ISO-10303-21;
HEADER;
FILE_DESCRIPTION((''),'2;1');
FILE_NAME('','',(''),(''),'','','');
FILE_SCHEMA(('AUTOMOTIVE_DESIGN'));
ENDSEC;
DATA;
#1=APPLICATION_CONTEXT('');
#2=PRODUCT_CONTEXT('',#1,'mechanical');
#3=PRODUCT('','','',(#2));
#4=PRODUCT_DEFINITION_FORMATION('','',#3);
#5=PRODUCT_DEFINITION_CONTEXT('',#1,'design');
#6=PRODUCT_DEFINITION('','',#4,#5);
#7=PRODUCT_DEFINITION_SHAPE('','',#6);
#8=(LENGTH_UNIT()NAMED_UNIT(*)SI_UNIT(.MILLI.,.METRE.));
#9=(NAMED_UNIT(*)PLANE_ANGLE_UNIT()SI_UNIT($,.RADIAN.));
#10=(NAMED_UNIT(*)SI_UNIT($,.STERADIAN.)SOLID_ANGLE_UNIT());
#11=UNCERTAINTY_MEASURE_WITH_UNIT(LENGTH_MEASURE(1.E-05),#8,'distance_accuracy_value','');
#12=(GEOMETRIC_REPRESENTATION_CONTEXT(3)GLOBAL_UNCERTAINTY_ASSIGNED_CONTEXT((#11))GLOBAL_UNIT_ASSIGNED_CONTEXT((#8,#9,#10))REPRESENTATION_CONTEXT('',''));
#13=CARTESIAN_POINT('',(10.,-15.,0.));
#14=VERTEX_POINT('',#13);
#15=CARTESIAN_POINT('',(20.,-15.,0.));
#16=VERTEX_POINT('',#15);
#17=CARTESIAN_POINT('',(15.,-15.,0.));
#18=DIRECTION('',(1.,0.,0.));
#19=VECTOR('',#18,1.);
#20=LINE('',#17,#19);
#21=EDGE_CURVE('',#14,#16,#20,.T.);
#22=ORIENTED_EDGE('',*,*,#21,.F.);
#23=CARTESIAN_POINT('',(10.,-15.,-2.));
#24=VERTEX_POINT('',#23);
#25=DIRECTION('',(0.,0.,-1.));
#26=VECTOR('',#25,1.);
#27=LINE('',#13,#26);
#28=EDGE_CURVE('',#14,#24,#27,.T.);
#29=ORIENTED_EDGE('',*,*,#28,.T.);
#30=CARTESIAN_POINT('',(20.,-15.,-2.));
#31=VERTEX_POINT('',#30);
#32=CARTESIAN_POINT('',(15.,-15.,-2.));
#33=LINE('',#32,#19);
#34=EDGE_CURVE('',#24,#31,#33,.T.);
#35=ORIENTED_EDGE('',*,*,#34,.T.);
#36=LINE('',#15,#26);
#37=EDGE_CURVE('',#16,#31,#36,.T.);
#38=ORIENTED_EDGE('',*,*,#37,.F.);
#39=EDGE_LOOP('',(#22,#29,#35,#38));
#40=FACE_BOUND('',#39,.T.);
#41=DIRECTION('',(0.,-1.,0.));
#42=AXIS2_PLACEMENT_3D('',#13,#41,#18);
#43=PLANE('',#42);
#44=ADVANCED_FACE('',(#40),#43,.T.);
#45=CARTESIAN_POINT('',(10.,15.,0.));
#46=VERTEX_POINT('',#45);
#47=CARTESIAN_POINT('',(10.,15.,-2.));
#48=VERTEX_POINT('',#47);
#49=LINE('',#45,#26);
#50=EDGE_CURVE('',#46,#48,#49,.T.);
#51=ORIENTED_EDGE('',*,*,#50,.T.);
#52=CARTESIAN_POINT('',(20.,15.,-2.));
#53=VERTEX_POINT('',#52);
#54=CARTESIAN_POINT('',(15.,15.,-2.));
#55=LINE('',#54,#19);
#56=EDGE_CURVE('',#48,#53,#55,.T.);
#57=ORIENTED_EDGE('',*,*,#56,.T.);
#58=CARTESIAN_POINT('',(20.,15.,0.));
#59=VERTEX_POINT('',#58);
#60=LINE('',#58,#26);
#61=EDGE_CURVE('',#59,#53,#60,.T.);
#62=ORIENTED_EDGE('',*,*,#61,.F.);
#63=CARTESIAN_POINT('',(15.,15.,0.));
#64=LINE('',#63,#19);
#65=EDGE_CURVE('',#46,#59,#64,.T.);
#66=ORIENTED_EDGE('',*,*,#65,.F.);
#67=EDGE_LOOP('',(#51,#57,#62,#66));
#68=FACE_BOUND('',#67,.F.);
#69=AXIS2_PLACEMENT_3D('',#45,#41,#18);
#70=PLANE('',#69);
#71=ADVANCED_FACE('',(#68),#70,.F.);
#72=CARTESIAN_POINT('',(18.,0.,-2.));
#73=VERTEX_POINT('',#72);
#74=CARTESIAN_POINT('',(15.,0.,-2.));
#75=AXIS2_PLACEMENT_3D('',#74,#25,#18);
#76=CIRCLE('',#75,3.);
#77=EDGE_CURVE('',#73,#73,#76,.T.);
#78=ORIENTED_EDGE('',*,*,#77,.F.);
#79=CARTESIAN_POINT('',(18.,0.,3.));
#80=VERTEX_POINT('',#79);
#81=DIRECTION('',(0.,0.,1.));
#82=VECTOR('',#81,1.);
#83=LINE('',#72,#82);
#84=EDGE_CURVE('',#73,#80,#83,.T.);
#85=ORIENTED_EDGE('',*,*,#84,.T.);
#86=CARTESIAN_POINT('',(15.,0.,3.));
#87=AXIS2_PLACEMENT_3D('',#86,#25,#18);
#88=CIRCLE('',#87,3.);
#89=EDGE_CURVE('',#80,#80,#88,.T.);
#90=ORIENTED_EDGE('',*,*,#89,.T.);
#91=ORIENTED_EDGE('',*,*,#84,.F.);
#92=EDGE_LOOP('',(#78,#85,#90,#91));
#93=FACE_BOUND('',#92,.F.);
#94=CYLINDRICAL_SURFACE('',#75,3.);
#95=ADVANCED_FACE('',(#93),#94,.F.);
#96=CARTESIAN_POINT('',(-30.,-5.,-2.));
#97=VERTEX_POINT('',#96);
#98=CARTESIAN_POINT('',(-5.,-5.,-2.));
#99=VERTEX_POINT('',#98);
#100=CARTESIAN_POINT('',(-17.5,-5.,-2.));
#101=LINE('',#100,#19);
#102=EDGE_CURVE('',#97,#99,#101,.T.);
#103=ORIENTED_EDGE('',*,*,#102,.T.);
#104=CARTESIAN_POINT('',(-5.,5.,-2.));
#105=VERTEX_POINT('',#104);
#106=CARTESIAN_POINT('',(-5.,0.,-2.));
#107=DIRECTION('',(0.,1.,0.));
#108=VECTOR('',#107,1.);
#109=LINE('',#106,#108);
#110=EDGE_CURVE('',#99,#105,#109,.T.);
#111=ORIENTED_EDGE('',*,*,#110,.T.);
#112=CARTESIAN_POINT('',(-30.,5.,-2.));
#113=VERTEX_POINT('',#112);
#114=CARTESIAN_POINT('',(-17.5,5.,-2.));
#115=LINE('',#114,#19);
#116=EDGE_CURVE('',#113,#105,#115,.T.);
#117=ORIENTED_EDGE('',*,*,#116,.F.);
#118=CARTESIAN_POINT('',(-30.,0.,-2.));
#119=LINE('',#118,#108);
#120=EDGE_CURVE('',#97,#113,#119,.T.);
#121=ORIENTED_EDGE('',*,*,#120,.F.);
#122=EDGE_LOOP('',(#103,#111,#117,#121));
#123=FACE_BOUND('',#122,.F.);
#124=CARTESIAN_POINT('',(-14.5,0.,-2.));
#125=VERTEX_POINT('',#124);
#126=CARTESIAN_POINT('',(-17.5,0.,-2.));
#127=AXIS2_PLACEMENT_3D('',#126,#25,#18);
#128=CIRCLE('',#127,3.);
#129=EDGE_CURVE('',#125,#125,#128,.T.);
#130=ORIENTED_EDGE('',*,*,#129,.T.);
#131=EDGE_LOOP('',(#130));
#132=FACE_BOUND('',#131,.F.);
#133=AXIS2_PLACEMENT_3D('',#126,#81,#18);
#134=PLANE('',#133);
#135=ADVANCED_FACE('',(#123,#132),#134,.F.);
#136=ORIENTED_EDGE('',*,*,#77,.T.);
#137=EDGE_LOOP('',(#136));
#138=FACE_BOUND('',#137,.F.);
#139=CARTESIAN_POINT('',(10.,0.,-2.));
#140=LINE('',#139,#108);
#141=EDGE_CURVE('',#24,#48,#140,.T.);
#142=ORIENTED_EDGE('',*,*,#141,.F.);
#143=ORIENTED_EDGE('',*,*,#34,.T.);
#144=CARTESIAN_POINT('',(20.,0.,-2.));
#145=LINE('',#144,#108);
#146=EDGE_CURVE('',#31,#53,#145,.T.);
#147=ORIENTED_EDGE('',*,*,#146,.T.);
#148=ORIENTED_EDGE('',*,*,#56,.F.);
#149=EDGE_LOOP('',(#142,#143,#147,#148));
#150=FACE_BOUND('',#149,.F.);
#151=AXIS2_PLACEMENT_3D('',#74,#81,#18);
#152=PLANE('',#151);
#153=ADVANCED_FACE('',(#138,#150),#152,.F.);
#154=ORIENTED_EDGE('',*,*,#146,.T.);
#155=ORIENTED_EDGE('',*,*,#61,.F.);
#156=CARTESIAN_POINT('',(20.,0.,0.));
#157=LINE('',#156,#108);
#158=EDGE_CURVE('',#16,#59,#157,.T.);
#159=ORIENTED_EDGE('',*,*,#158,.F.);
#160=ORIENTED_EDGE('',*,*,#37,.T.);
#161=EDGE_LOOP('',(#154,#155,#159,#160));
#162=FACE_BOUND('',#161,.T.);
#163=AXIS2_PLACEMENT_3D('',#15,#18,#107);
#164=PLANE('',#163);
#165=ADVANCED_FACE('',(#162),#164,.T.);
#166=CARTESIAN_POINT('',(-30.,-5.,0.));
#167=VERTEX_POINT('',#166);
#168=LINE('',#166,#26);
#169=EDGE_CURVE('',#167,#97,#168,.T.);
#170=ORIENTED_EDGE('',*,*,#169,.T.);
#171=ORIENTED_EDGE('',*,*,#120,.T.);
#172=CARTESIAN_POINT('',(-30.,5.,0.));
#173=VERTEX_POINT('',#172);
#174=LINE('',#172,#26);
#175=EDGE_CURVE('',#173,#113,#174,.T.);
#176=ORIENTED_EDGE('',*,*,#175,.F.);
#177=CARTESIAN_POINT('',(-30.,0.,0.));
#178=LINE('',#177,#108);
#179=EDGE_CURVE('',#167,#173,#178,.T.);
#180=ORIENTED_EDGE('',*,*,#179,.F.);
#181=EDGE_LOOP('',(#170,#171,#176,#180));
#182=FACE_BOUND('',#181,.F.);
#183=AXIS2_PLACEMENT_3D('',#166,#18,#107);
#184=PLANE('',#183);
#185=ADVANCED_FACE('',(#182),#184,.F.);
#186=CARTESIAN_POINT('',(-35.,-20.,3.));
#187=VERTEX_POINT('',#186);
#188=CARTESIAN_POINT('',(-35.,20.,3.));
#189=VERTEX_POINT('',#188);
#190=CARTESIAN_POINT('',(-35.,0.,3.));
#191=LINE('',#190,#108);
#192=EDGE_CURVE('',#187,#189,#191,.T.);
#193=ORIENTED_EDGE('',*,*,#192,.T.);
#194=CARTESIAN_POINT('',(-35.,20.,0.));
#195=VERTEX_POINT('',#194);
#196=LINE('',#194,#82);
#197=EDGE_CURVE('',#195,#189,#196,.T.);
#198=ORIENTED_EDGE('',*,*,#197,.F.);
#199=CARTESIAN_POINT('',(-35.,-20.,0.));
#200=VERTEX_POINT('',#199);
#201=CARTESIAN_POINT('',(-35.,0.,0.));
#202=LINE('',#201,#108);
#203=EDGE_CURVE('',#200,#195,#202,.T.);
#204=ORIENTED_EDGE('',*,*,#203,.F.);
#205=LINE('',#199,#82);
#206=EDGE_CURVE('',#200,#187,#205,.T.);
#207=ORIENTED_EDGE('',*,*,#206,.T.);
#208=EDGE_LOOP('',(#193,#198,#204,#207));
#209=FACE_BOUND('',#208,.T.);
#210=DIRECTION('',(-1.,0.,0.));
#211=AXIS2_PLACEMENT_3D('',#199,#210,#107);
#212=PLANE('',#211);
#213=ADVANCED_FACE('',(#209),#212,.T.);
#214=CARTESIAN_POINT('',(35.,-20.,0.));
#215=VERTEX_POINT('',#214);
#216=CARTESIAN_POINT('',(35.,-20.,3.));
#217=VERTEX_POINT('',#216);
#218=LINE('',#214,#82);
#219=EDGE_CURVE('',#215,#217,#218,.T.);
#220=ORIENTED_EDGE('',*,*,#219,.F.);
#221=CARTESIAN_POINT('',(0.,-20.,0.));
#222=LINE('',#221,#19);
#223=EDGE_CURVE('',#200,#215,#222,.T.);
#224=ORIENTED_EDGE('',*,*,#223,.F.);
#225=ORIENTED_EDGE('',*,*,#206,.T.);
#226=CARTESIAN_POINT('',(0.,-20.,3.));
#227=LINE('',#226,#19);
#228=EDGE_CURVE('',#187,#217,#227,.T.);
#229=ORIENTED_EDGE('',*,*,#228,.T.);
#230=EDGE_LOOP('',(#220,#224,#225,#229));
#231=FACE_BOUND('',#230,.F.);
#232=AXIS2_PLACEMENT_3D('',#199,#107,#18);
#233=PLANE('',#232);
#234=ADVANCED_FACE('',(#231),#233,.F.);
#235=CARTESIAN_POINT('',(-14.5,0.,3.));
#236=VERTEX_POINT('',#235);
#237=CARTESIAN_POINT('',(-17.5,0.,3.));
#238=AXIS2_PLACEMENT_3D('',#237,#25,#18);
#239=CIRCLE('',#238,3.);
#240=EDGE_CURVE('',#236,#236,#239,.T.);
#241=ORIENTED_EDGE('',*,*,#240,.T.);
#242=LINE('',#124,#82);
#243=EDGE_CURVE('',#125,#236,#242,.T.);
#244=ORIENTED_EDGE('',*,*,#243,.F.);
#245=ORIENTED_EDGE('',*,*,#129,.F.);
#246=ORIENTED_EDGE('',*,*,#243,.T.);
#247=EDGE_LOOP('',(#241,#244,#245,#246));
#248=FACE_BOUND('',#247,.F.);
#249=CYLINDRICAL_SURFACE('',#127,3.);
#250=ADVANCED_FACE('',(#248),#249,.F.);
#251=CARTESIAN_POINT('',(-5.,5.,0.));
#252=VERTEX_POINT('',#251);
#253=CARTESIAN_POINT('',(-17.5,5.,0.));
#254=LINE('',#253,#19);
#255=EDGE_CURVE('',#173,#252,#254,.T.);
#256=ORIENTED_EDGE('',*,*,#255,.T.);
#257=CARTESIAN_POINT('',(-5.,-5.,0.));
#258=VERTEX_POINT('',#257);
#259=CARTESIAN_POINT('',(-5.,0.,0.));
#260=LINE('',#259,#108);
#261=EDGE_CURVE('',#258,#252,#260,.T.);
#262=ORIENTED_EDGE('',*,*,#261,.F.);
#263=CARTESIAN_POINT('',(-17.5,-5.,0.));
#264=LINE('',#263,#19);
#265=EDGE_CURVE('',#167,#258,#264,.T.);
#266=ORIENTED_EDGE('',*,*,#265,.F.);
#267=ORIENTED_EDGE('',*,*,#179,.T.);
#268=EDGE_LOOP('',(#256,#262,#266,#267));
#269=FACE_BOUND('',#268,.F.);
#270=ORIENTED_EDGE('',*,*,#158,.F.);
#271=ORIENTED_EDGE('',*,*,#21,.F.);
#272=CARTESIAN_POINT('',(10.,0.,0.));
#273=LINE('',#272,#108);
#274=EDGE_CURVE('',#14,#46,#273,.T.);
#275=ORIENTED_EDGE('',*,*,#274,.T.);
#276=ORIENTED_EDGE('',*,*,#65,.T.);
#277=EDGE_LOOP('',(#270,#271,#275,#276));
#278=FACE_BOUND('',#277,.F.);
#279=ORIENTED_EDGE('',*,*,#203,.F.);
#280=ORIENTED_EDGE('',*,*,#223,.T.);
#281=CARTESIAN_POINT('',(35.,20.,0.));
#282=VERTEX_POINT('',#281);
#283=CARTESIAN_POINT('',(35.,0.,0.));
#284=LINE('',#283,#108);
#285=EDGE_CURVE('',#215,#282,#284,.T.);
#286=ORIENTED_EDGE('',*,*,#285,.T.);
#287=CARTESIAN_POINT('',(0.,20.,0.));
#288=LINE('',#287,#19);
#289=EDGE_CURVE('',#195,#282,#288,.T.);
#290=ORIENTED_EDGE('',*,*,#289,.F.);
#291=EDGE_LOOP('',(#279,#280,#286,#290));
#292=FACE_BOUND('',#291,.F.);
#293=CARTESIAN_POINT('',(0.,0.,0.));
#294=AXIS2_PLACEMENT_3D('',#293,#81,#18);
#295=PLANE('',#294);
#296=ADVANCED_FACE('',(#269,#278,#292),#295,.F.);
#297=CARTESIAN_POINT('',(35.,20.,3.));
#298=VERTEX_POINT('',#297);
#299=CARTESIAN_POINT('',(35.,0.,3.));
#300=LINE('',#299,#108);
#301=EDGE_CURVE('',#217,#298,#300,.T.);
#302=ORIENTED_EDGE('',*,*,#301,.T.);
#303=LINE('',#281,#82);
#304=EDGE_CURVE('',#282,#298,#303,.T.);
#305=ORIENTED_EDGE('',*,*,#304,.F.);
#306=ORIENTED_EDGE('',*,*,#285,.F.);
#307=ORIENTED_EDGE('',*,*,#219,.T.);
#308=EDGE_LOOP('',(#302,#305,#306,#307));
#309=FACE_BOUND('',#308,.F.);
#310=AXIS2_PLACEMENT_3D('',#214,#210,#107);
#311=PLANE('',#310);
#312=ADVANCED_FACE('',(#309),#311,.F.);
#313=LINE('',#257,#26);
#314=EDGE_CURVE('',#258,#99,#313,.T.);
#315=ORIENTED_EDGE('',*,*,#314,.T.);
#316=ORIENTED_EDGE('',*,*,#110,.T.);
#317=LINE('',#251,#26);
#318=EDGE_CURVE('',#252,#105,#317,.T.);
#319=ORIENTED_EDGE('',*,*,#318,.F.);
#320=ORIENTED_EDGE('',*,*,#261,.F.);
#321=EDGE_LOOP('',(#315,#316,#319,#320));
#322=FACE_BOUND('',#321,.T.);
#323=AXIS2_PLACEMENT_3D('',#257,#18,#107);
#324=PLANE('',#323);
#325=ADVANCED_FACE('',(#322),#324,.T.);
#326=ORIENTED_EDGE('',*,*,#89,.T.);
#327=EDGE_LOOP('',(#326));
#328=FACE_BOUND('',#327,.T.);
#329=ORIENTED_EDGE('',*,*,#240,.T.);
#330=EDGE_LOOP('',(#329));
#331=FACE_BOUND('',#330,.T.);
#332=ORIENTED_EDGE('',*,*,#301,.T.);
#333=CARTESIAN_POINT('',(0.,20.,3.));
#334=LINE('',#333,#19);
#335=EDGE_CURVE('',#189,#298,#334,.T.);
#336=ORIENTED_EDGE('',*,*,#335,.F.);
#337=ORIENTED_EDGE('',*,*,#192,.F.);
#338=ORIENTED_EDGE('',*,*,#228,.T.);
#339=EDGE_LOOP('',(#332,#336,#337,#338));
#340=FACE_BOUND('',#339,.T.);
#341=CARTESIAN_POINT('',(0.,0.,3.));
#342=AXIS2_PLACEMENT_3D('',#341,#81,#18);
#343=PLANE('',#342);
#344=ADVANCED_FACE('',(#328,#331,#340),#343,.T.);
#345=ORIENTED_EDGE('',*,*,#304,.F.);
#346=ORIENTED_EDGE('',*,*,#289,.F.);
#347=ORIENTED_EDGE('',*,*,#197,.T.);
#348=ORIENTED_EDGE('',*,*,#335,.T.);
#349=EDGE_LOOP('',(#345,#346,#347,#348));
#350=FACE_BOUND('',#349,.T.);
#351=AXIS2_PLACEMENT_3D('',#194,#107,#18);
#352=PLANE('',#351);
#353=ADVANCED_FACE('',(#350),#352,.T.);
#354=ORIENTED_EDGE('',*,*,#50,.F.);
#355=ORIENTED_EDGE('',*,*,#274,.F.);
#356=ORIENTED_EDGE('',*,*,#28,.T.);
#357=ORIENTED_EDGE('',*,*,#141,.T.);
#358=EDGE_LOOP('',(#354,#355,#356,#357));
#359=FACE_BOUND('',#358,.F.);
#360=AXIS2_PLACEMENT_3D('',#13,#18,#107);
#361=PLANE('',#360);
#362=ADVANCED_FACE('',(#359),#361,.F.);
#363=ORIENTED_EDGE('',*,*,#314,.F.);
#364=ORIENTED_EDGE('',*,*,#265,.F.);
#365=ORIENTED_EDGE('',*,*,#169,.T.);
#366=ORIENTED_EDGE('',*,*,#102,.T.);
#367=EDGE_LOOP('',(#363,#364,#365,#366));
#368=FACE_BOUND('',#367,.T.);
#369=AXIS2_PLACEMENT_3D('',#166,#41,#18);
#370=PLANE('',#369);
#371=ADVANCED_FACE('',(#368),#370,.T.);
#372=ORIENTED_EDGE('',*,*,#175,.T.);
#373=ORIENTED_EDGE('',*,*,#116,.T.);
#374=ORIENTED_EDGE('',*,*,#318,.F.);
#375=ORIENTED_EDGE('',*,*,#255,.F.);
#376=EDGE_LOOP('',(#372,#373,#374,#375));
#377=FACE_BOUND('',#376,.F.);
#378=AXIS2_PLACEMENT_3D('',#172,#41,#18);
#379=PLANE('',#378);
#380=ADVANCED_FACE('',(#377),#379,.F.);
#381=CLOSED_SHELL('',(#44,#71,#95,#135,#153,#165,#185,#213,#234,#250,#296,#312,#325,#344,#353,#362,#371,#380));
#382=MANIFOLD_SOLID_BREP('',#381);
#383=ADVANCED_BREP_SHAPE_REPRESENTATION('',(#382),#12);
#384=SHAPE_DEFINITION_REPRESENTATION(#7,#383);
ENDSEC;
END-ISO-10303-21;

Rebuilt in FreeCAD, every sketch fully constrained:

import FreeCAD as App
import Part
import Sketcher

V = App.Vector
Q = App.Units.Quantity


def add_polygon(sketch, points):
    """Adds a closed chain of lines whose ends are joined by coincident constraints."""
    first, n = sketch.GeometryCount, len(points)
    for a, b in zip(points, points[1:] + points[:1]):
        sketch.addGeometry(Part.LineSegment(App.Vector(*a, 0), App.Vector(*b, 0)), False)
    for i in range(n):
        sketch.addConstraint(Sketcher.Constraint("Coincident", first + i, 2, first + (i + 1) % n, 1))

doc = App.newDocument("Part")
params = doc.addObject("Spreadsheet::Sheet", "Params")
for row, (alias, value) in enumerate([
    ("sketch1_width", "70 mm"),
    ("sketch1_height", "40 mm"),
    ("pad1_length", "3 mm"),
    ("sketch2_width", "25 mm"),
    ("sketch2_width2", "10 mm"),
    ("sketch2_height", "30 mm"),
    ("pad2_length", "2 mm"),
    ("sketch3_diameter", "6 mm"),
    ("pocket1_length", "25 mm"),
], start=1):
    params.set(f"A{row}", alias)
    params.set(f"B{row}", "=" + value)
    params.setAlias(f"B{row}", alias)

body = doc.addObject("PartDesign::Body", "Body")

# Sketch on XY plane
sketch1 = body.newObject("Sketcher::SketchObject", "Sketch")
sketch1.AttachmentSupport = (doc.getObject("XY_Plane"), [""])
sketch1.MapMode = "FlatFace"
add_polygon(sketch1, [(-35, 20), (-35, -20), (35, -20), (35, 20)])  # lines 0-3
sketch1.addConstraint(Sketcher.Constraint("Vertical", 0))
sketch1.addConstraint(Sketcher.Constraint("Horizontal", 1))
sketch1.addConstraint(Sketcher.Constraint("Vertical", 2))
sketch1.addConstraint(Sketcher.Constraint("Horizontal", 3))
sketch1.addConstraint(Sketcher.Constraint("Symmetric", 0, 2, 2, 2, -1, 1))
sketch1.addConstraint(Sketcher.Constraint("DistanceX", 1, 1, 1, 2, Q("70 mm")))
sketch1.addConstraint(Sketcher.Constraint("DistanceY", 0, 2, 0, 1, Q("40 mm")))
sketch1.setExpression("Constraints[9]", "Params.sketch1_width")
sketch1.setExpression("Constraints[10]", "Params.sketch1_height")
pad1 = body.newObject("PartDesign::Pad", "Pad")
pad1.Profile = sketch1
pad1.setExpression("Length", "Params.pad1_length")

# Sketch on XY plane
sketch2 = body.newObject("Sketcher::SketchObject", "Sketch001")
sketch2.AttachmentSupport = (doc.getObject("XY_Plane"), [""])
sketch2.MapMode = "FlatFace"
add_polygon(sketch2, [(-30, 5), (-30, -5), (-5, -5), (-5, 5)])  # lines 0-3
add_polygon(sketch2, [(10, 15), (10, -15), (20, -15), (20, 15)])  # lines 4-7
sketch2.addConstraint(Sketcher.Constraint("Vertical", 0))
sketch2.addConstraint(Sketcher.Constraint("Horizontal", 1))
sketch2.addConstraint(Sketcher.Constraint("Vertical", 2))
sketch2.addConstraint(Sketcher.Constraint("Horizontal", 3))
sketch2.addConstraint(Sketcher.Constraint("Vertical", 4))
sketch2.addConstraint(Sketcher.Constraint("Horizontal", 5))
sketch2.addConstraint(Sketcher.Constraint("Vertical", 6))
sketch2.addConstraint(Sketcher.Constraint("Horizontal", 7))
sketch2.addConstraint(Sketcher.Constraint("Equal", 7, 0))
sketch2.addConstraint(Sketcher.Constraint("DistanceX", 1, 1, 1, 2, Q("25 mm")))
sketch2.addConstraint(Sketcher.Constraint("DistanceX", 5, 1, 5, 2, Q("10 mm")))
sketch2.addConstraint(Sketcher.Constraint("DistanceY", 4, 2, 4, 1, Q("30 mm")))
sketch2.addConstraint(Sketcher.Constraint("DistanceX", 0, 2, -1, 1, Q("30 mm")))
sketch2.addConstraint(Sketcher.Constraint("DistanceY", 0, 2, -1, 1, Q("5 mm")))
sketch2.addConstraint(Sketcher.Constraint("DistanceX", -1, 1, 4, 2, Q("10 mm")))
sketch2.addConstraint(Sketcher.Constraint("DistanceY", 4, 2, -1, 1, Q("15 mm")))
sketch2.setExpression("Constraints[17]", "Params.sketch2_width")
sketch2.setExpression("Constraints[18]", "Params.sketch2_width2")
sketch2.setExpression("Constraints[19]", "Params.sketch2_height")
pad2 = body.newObject("PartDesign::Pad", "Pad001")
pad2.Profile = sketch2
pad2.setExpression("Length", "Params.pad2_length")
pad2.Reversed = True

# Sketch on XY plane
sketch3 = body.newObject("Sketcher::SketchObject", "Sketch002")
sketch3.AttachmentSupport = (doc.getObject("XY_Plane"), [""])
sketch3.MapMode = "FlatFace"
sketch3.AttachmentOffset = App.Placement(V(0, 0, -2), App.Rotation())
sketch3.addGeometry(Part.Circle(V(-17.5, 0, 0), V(0, 0, 1), 3), False)
sketch3.addGeometry(Part.Circle(V(15, 0, 0), V(0, 0, 1), 3), False)
sketch3.addConstraint(Sketcher.Constraint("Equal", 0, 1))
sketch3.addConstraint(Sketcher.Constraint("PointOnObject", 0, 3, -1))
sketch3.addConstraint(Sketcher.Constraint("PointOnObject", 1, 3, -1))
sketch3.addConstraint(Sketcher.Constraint("Diameter", 0, Q("6 mm")))
sketch3.addConstraint(Sketcher.Constraint("DistanceX", -1, 1, 1, 3, Q("15 mm")))
sketch3.addConstraint(Sketcher.Constraint("DistanceX", 0, 3, -1, 1, Q("17.5 mm")))
sketch3.setExpression("Constraints[3]", "Params.sketch3_diameter")
pocket1 = body.newObject("PartDesign::Pocket", "Pocket")
pocket1.Profile = sketch3
pocket1.setExpression("Length", "Params.pocket1_length")
pocket1.Reversed = True

doc.recompute()
